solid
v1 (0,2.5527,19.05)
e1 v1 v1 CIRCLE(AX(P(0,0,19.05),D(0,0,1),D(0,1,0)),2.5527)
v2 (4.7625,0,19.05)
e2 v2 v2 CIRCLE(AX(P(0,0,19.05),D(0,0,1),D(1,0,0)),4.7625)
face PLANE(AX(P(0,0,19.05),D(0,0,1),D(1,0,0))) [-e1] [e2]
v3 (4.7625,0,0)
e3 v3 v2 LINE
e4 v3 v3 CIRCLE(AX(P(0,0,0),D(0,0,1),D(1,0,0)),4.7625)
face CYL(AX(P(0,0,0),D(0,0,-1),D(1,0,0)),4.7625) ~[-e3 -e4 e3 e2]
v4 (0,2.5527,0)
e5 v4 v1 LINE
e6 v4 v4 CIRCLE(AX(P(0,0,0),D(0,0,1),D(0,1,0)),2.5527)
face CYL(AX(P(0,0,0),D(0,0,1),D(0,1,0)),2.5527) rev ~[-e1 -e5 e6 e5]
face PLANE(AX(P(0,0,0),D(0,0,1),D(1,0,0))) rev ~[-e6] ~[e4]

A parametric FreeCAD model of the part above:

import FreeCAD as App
import Part
import Sketcher

V = App.Vector
Q = App.Units.Quantity

doc = App.newDocument("Part")
params = doc.addObject("Spreadsheet::Sheet", "Params")
for row, (alias, value) in enumerate([
    ("sketch1_diameter", "0.375 in"),
    ("pad1_length", "0.75 in"),
    ("sketch2_diameter", "0.201 in"),
    ("hole_diameter", "0.201 in"),
], start=1):
    params.set(f"A{row}", alias)
    params.set(f"B{row}", "=" + value)
    params.setAlias(f"B{row}", alias)

body = doc.addObject("PartDesign::Body", "Body")

sketch1 = doc.addObject("Sketcher::SketchObject", "Sketch")
body.addObject(sketch1)
sketch1.AttachmentSupport = (doc.XY_Plane, [""])
sketch1.MapMode = "FlatFace"
sketch1.addGeometry(Part.Circle(V(0, 0, 0), V(0, 0, 1), 4.8), False)
sketch1.addConstraint(Sketcher.Constraint("Coincident", 0, 3, -1, 1))
sketch1.addConstraint(Sketcher.Constraint("Diameter", 0, Q("0.375 in")))
sketch1.setExpression("Constraints[1]", "Params.sketch1_diameter")
pad1 = doc.addObject("PartDesign::Pad", "Pad")
body.addObject(pad1)
pad1.Profile = sketch1
pad1.setExpression("Length", "Params.pad1_length")

sketch2 = doc.addObject("Sketcher::SketchObject", "Sketch001")
body.addObject(sketch2)
sketch2.AttachmentSupport = (doc.XY_Plane, [""])
sketch2.MapMode = "FlatFace"
sketch2.addGeometry(Part.Circle(V(0, 0, 0), V(0, 0, 1), 2.6), False)
sketch2.addConstraint(Sketcher.Constraint("Coincident", 0, 3, -1, 1))
sketch2.addConstraint(Sketcher.Constraint("Diameter", 0, Q("0.201 in")))
sketch2.setExpression("Constraints[1]", "Params.sketch2_diameter")
doc.recompute()
hole = doc.addObject("PartDesign::Hole", "Hole")
body.addObject(hole)
hole.Profile = sketch2
hole.ThreadType = "None"
hole.setExpression("Diameter", "Params.hole_diameter")
hole.DepthType = "ThroughAll"
hole.Reversed = True

doc.recompute()
